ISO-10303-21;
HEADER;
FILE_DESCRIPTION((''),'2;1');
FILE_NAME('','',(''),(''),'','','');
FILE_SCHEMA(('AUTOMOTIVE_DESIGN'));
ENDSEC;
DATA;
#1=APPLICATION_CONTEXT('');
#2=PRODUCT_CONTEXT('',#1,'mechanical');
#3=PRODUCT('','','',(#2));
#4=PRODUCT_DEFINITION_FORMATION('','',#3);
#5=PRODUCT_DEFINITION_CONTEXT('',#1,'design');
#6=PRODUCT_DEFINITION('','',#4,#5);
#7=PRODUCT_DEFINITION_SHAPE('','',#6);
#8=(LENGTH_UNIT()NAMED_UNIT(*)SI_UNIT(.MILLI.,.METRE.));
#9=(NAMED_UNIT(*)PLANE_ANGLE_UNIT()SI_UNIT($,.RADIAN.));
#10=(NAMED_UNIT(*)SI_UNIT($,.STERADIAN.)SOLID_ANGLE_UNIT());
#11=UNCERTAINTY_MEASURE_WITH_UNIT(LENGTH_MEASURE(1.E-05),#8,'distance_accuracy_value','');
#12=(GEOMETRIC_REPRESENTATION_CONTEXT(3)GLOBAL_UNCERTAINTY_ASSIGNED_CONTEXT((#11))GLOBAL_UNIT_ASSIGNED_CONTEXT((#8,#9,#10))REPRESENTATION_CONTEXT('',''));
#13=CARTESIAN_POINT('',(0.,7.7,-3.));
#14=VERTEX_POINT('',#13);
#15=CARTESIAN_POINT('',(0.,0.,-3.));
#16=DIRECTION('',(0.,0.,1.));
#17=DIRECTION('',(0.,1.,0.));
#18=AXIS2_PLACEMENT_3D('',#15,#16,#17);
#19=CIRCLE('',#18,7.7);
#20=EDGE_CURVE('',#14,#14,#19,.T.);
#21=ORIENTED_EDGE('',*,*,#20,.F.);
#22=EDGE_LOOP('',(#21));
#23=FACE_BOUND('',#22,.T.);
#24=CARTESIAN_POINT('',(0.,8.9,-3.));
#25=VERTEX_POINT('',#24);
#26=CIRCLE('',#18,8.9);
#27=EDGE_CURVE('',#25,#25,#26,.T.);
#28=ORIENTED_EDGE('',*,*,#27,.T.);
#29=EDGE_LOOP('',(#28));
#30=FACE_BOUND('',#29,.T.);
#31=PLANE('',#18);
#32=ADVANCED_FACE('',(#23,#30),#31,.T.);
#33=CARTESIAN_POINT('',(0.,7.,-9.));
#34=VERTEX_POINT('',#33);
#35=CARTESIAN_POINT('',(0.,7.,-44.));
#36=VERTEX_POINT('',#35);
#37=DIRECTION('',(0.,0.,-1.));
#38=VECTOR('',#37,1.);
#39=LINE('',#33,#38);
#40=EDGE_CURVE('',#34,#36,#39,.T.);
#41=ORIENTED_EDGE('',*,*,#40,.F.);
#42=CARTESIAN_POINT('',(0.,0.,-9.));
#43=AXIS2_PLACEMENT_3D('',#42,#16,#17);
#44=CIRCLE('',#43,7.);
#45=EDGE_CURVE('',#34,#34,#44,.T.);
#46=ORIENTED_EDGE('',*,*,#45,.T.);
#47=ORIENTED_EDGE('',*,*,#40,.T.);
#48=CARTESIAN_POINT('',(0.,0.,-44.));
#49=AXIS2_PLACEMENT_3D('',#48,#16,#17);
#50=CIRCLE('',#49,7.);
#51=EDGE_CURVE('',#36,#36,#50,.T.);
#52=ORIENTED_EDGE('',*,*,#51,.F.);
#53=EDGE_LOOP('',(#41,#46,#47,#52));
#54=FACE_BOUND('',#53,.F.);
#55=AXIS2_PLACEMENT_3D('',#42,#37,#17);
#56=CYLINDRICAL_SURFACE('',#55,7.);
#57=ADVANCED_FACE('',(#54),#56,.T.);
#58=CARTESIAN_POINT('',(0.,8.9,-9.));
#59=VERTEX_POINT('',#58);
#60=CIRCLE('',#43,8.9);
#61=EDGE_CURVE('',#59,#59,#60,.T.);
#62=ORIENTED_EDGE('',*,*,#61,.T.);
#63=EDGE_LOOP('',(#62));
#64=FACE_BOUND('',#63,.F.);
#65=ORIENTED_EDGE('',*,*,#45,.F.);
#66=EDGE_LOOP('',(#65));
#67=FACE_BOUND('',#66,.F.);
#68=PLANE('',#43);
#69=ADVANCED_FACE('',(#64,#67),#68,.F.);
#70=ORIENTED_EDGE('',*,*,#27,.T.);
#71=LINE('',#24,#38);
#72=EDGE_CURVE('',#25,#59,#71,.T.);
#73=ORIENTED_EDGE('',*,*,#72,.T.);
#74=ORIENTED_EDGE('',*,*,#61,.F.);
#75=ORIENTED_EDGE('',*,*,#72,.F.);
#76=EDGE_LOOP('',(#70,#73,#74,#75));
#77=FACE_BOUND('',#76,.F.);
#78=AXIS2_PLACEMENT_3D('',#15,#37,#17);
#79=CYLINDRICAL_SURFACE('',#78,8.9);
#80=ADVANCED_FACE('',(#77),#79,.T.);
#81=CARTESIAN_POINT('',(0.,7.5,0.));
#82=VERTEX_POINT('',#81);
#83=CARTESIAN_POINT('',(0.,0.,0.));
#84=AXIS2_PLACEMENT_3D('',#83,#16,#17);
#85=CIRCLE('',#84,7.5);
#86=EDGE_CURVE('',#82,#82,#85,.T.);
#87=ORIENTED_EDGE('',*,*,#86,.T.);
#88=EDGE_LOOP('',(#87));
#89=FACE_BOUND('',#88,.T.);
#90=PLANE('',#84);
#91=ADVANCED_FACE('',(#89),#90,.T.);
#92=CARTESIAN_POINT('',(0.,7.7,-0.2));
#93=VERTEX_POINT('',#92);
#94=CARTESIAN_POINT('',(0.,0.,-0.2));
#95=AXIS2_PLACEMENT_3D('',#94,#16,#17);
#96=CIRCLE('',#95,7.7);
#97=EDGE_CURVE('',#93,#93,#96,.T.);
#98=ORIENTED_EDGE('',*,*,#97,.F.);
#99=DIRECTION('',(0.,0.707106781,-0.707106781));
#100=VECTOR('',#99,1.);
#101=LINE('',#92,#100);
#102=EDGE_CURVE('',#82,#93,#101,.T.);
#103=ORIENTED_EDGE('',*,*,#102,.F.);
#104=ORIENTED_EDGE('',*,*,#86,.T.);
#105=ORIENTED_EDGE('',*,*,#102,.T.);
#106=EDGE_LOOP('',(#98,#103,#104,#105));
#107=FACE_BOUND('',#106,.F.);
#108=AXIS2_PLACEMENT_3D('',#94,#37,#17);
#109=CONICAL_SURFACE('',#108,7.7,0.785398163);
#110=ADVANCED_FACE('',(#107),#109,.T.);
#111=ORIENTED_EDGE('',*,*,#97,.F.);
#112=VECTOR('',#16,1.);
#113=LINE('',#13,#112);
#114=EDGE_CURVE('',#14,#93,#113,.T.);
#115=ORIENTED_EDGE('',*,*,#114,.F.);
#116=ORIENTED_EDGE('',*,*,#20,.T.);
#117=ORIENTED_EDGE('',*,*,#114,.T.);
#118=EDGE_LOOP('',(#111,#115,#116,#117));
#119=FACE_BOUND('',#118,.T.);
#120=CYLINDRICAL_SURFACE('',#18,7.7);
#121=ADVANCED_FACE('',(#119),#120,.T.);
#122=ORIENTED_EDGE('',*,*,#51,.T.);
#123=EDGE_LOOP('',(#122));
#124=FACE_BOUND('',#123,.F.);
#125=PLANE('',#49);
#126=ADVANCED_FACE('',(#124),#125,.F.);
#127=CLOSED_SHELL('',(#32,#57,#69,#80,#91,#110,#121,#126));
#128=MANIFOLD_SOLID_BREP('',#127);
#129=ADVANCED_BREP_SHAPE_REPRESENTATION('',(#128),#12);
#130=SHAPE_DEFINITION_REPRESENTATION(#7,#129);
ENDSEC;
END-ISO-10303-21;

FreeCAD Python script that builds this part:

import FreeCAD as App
import Part
import Sketcher
from FreeCAD import Vector


def edges_at(feature, points):
    """Names of the edges that pass closest to the given points."""
    edges = feature.Shape.Edges
    near = lambda p: min(range(len(edges)), key=lambda i: edges[i].distToShape(Part.Vertex(*p))[0])
    return sorted({f"Edge{near(p) + 1}" for p in points})


def add_polygon(sketch, points):
    """Adds a closed chain of lines whose ends are joined by coincident constraints."""
    first, n = sketch.GeometryCount, len(points)
    for a, b in zip(points, points[1:] + points[:1]):
        sketch.addGeometry(Part.LineSegment(App.Vector(*a, 0), App.Vector(*b, 0)), False)
    for i in range(n):
        sketch.addConstraint(Sketcher.Constraint("Coincident", first + i, 2, first + (i + 1) % n, 1))

doc = App.newDocument("Part")
body = doc.addObject("PartDesign::Body", "Body")

# Sketch on YZ plane
sketch1 = body.newObject("Sketcher::SketchObject", "Sketch")
sketch1.AttachmentSupport = (doc.getObject("YZ_Plane"), [""])
sketch1.MapMode = "FlatFace"
add_polygon(sketch1, [(8.9, -9), (8.9, -3), (7.7, -3), (7.7, 0), (0, 0), (0, -44), (7, -44), (7, -9)])  # lines 0-7
sketch1.addConstraint(Sketcher.Constraint("Vertical", 0))
sketch1.addConstraint(Sketcher.Constraint("Horizontal", 1))
sketch1.addConstraint(Sketcher.Constraint("Vertical", 2))
sketch1.addConstraint(Sketcher.Constraint("Horizontal", 3))
sketch1.addConstraint(Sketcher.Constraint("Vertical", 4))
sketch1.addConstraint(Sketcher.Constraint("Horizontal", 5))
sketch1.addConstraint(Sketcher.Constraint("Vertical", 6))
sketch1.addConstraint(Sketcher.Constraint("Horizontal", 7))
sketch1.addConstraint(Sketcher.Constraint("Coincident", 3, 2, -1, 1))
sketch1.addConstraint(Sketcher.Constraint("DistanceX", 5, 1, 5, 2, 7.0))
sketch1.addConstraint(Sketcher.Constraint("DistanceY", 2, 1, 2, 2, 3.0))
sketch1.addConstraint(Sketcher.Constraint("DistanceY", 6, 1, 6, 2, 35.0))
sketch1.addConstraint(Sketcher.Constraint("DistanceX", 3, 2, 3, 1, 7.7))
sketch1.addConstraint(Sketcher.Constraint("DistanceY", 6, 2, -1, 1, 9.0))
sketch1.addConstraint(Sketcher.Constraint("DistanceX", -1, 1, 0, 2, 8.9))
revolution = body.newObject("PartDesign::Revolution", "Revolution")
revolution.Profile = sketch1
revolution.ReferenceAxis = (sketch1, ["V_Axis"])
revolution.Angle = 360
doc.recompute()

chamfer = body.newObject("PartDesign::Chamfer", "Chamfer")
chamfer.Base = (revolution, edges_at(revolution, [(0, -7.7, 0)]))
chamfer.Size = 0.2

doc.recompute()
